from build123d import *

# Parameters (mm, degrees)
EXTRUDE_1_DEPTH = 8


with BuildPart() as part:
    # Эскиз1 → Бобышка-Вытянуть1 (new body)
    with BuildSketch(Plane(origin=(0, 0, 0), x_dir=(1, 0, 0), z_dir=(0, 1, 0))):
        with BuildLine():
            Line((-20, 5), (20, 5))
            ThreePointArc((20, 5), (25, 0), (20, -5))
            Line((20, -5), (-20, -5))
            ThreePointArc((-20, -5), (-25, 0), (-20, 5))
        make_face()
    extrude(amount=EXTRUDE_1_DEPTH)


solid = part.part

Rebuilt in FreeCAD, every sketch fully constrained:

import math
import FreeCAD as App
import Part
import Sketcher

doc = App.newDocument("Part")
body = doc.addObject("PartDesign::Body", "Body")

sketch1 = doc.addObject("Sketcher::SketchObject", "Sketch")
body.addObject(sketch1)
sketch1.AttachmentSupport = (doc.XZ_Plane, [""])
sketch1.MapMode = "FlatFace"
sketch1.addGeometry([
    Part.LineSegment(App.Vector(20, -5, 0), App.Vector(-20, -5, 0)),
    Part.ArcOfCircle(Part.Circle(App.Vector(-20, 0, 0), App.Vector(0, 0, 1), 5), math.radians(90), math.radians(270)),
    Part.LineSegment(App.Vector(-20, 5, 0), App.Vector(20, 5, 0)),
    Part.ArcOfCircle(Part.Circle(App.Vector(20, 0, 0), App.Vector(0, 0, 1), 5), math.radians(-90), math.radians(90)),
], False)
sketch1.addConstraint([
    Sketcher.Constraint("Tangent", 0, 2, 1, 2),
    Sketcher.Constraint("Tangent", 1, 1, 2, 1),
    Sketcher.Constraint("Tangent", 2, 2, 3, 2),
    Sketcher.Constraint("Tangent", 3, 1, 0, 1),
    Sketcher.Constraint("Horizontal", 0),
    Sketcher.Constraint("Horizontal", 2),
    Sketcher.Constraint("Symmetric", 1, 3, 3, 3, -1, 1),
    Sketcher.Constraint("Radius", 1, 5.0),
    Sketcher.Constraint("DistanceX", 0, 2, 0, 1, 40.0),
])
pad1 = doc.addObject("PartDesign::Pad", "Pad")
body.addObject(pad1)
pad1.Profile = sketch1
pad1.Length = 8
pad1.Reversed = True

doc.recompute()
